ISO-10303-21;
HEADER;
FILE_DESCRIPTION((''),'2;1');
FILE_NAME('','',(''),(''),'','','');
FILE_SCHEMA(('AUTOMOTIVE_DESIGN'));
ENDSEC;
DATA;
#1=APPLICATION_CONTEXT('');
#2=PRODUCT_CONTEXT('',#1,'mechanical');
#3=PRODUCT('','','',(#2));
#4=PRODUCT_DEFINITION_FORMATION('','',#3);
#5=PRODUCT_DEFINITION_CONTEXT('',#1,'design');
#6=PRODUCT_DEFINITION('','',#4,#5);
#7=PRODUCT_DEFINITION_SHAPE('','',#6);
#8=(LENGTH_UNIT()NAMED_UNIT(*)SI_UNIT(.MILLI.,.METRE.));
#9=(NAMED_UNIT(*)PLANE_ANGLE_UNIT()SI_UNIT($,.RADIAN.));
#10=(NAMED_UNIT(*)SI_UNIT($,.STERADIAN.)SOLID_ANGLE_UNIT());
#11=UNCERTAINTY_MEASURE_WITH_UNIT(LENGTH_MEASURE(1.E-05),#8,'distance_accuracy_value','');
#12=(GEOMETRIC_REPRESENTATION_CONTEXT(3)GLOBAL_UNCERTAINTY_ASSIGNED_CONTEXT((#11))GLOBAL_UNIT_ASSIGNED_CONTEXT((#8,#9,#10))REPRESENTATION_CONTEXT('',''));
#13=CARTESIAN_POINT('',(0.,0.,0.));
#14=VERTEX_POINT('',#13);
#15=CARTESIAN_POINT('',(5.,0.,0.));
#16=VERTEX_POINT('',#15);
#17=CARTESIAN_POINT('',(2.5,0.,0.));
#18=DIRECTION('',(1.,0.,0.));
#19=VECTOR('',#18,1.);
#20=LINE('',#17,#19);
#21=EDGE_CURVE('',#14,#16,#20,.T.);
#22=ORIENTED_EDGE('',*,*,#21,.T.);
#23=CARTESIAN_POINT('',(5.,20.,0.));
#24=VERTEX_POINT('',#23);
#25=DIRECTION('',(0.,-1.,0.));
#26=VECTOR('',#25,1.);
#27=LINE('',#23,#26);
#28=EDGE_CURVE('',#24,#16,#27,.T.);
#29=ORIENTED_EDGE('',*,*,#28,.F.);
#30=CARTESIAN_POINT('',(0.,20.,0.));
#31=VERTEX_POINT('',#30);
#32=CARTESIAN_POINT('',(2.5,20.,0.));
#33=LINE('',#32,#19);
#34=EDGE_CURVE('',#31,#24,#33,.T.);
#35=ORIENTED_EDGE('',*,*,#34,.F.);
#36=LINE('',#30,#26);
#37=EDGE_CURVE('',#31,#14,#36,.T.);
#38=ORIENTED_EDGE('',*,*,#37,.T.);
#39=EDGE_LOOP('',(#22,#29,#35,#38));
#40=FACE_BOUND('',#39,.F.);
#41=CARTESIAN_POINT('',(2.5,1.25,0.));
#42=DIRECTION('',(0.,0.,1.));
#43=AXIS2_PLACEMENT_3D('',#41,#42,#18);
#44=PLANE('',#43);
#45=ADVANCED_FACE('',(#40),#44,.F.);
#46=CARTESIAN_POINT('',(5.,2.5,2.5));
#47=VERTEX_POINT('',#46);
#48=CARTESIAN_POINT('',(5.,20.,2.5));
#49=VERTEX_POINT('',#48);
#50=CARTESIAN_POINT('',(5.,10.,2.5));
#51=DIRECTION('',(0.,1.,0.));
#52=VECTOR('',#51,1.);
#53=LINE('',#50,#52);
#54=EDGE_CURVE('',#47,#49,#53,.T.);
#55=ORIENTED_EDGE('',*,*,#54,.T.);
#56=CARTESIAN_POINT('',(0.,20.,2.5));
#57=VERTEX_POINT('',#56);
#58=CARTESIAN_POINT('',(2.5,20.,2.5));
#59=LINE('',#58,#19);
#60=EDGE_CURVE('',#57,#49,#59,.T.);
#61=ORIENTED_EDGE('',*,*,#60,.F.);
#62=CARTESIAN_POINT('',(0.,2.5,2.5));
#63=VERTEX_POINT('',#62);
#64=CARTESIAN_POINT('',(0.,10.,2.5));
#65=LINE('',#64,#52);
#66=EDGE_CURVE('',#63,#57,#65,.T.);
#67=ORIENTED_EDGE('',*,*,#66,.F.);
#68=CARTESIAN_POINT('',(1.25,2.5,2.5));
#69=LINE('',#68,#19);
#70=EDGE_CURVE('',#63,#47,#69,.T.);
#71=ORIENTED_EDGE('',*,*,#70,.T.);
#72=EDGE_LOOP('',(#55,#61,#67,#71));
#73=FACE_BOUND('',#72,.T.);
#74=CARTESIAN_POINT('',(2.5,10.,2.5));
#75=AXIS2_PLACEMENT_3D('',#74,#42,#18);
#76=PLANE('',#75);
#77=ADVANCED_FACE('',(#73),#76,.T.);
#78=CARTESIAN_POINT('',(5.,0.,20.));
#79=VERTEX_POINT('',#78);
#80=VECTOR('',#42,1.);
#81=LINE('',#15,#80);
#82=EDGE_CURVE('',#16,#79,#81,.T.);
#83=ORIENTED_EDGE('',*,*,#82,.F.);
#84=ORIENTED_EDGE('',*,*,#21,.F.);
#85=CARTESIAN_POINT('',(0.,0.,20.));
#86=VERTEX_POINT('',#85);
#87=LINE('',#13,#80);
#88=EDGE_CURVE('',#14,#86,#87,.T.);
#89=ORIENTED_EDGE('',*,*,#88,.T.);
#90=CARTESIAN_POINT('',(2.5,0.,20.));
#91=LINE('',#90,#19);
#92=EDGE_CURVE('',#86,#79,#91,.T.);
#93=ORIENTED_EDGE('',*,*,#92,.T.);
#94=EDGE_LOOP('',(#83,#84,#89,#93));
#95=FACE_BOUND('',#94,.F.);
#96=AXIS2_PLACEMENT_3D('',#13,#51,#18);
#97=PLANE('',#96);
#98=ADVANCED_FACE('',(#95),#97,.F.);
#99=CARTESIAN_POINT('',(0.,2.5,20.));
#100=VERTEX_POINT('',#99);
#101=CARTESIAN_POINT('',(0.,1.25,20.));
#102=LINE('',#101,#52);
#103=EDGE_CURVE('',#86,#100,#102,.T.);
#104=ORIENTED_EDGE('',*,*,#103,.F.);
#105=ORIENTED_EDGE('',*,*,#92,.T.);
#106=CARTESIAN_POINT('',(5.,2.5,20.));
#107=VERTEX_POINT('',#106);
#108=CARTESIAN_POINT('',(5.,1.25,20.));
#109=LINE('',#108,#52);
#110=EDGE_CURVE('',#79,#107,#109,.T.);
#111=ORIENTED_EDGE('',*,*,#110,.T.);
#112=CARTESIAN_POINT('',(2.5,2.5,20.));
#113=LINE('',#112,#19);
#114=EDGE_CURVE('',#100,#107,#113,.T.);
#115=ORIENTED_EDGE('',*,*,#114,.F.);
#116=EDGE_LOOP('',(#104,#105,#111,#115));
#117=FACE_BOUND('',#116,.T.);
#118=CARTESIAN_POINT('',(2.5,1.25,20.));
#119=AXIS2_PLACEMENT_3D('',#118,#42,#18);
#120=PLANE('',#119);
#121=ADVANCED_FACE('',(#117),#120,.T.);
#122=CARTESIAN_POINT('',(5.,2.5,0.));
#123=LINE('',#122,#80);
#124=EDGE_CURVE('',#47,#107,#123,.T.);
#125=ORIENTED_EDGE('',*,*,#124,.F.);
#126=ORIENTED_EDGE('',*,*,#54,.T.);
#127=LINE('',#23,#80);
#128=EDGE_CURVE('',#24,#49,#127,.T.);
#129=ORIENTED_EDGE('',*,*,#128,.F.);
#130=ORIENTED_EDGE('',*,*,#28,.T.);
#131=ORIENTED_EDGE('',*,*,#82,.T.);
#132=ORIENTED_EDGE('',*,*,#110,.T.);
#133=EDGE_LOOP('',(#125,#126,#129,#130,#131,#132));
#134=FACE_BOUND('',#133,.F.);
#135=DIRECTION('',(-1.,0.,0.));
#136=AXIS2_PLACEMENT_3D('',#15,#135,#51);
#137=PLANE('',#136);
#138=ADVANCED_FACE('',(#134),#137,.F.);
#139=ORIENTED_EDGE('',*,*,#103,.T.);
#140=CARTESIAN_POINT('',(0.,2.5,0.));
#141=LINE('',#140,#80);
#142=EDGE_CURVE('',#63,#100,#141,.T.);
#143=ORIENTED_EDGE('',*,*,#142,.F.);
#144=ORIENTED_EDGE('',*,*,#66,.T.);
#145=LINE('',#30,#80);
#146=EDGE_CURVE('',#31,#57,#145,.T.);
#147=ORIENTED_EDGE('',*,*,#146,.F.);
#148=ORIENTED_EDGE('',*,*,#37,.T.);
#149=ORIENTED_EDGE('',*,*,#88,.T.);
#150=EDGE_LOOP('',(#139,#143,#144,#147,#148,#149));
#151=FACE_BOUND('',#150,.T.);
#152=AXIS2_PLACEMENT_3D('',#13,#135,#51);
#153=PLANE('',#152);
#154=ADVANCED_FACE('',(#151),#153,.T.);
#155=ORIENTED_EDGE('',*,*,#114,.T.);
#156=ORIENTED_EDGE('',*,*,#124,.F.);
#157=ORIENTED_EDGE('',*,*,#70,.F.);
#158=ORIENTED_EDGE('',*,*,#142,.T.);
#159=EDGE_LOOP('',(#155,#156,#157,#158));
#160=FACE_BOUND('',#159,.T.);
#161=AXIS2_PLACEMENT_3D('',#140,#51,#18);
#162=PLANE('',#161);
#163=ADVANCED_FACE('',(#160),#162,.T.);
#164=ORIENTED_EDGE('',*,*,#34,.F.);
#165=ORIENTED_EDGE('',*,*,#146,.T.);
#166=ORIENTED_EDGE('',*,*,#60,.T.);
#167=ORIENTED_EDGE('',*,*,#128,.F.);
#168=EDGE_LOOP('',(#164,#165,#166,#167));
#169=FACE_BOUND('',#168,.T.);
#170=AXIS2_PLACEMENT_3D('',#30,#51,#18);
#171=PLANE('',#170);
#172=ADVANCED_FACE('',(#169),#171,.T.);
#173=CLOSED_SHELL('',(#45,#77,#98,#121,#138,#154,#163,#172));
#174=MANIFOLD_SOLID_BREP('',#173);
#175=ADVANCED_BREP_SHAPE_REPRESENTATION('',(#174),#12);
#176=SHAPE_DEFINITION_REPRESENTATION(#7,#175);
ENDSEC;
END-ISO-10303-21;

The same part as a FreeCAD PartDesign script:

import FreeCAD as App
import Part
import Sketcher

doc = App.newDocument("Part")
body = doc.addObject("PartDesign::Body", "Body")

sketch1 = doc.addObject("Sketcher::SketchObject", "Sketch")
body.addObject(sketch1)
sketch1.AttachmentSupport = (doc.XY_Plane, [""])
sketch1.MapMode = "FlatFace"
sketch1.addGeometry(Part.LineSegment(App.Vector(0, 20, 0), App.Vector(0, 0, 0)), False)
sketch1.addGeometry(Part.LineSegment(App.Vector(0, 0, 0), App.Vector(5, 0, 0)), False)
sketch1.addGeometry(Part.LineSegment(App.Vector(5, 0, 0), App.Vector(5, 20, 0)), False)
sketch1.addGeometry(Part.LineSegment(App.Vector(5, 20, 0), App.Vector(0, 20, 0)), False)
sketch1.addConstraint(Sketcher.Constraint("Coincident", 0, 2, 1, 1))
sketch1.addConstraint(Sketcher.Constraint("Coincident", 1, 2, 2, 1))
sketch1.addConstraint(Sketcher.Constraint("Coincident", 2, 2, 3, 1))
sketch1.addConstraint(Sketcher.Constraint("Coincident", 3, 2, 0, 1))
sketch1.addConstraint(Sketcher.Constraint("Vertical", 0))
sketch1.addConstraint(Sketcher.Constraint("Horizontal", 1))
sketch1.addConstraint(Sketcher.Constraint("Vertical", 2))
sketch1.addConstraint(Sketcher.Constraint("Horizontal", 3))
sketch1.addConstraint(Sketcher.Constraint("Coincident", 0, 2, -1, 1))
sketch1.addConstraint(Sketcher.Constraint("DistanceX", 1, 1, 1, 2, 5.0))
sketch1.addConstraint(Sketcher.Constraint("DistanceY", 0, 2, 0, 1, 20.0))
pad1 = doc.addObject("PartDesign::Pad", "Pad")
body.addObject(pad1)
pad1.Profile = sketch1
pad1.Length = 2.5
body2 = doc.addObject("PartDesign::Body", "Body001")

sketch2 = doc.addObject("Sketcher::SketchObject", "Sketch001")
body2.addObject(sketch2)
sketch2.AttachmentSupport = (doc.getObject("XY_Plane001"), [""])
sketch2.MapMode = "FlatFace"
sketch2.addGeometry(Part.LineSegment(App.Vector(0, 2.5, 0), App.Vector(0, 0, 0)), False)
sketch2.addGeometry(Part.LineSegment(App.Vector(0, 0, 0), App.Vector(5, 0, 0)), False)
sketch2.addGeometry(Part.LineSegment(App.Vector(5, 0, 0), App.Vector(5, 2.5, 0)), False)
sketch2.addGeometry(Part.LineSegment(App.Vector(5, 2.5, 0), App.Vector(0, 2.5, 0)), False)
sketch2.addConstraint(Sketcher.Constraint("Coincident", 0, 2, 1, 1))
sketch2.addConstraint(Sketcher.Constraint("Coincident", 1, 2, 2, 1))
sketch2.addConstraint(Sketcher.Constraint("Coincident", 2, 2, 3, 1))
sketch2.addConstraint(Sketcher.Constraint("Coincident", 3, 2, 0, 1))
sketch2.addConstraint(Sketcher.Constraint("Vertical", 0))
sketch2.addConstraint(Sketcher.Constraint("Horizontal", 1))
sketch2.addConstraint(Sketcher.Constraint("Vertical", 2))
sketch2.addConstraint(Sketcher.Constraint("Horizontal", 3))
sketch2.addConstraint(Sketcher.Constraint("Coincident", 0, 2, -1, 1))
sketch2.addConstraint(Sketcher.Constraint("DistanceX", 1, 1, 1, 2, 5.0))
sketch2.addConstraint(Sketcher.Constraint("DistanceY", 0, 2, 0, 1, 2.5))
pad2 = doc.addObject("PartDesign::Pad", "Pad001")
body2.addObject(pad2)
pad2.Profile = sketch2
pad2.Length = 20
doc.recompute()

boolean = doc.addObject("PartDesign::Boolean", "Boolean")
body2.addObject(boolean)
boolean.Type = "Fuse"
boolean.addObjects([body])

doc.recompute()
